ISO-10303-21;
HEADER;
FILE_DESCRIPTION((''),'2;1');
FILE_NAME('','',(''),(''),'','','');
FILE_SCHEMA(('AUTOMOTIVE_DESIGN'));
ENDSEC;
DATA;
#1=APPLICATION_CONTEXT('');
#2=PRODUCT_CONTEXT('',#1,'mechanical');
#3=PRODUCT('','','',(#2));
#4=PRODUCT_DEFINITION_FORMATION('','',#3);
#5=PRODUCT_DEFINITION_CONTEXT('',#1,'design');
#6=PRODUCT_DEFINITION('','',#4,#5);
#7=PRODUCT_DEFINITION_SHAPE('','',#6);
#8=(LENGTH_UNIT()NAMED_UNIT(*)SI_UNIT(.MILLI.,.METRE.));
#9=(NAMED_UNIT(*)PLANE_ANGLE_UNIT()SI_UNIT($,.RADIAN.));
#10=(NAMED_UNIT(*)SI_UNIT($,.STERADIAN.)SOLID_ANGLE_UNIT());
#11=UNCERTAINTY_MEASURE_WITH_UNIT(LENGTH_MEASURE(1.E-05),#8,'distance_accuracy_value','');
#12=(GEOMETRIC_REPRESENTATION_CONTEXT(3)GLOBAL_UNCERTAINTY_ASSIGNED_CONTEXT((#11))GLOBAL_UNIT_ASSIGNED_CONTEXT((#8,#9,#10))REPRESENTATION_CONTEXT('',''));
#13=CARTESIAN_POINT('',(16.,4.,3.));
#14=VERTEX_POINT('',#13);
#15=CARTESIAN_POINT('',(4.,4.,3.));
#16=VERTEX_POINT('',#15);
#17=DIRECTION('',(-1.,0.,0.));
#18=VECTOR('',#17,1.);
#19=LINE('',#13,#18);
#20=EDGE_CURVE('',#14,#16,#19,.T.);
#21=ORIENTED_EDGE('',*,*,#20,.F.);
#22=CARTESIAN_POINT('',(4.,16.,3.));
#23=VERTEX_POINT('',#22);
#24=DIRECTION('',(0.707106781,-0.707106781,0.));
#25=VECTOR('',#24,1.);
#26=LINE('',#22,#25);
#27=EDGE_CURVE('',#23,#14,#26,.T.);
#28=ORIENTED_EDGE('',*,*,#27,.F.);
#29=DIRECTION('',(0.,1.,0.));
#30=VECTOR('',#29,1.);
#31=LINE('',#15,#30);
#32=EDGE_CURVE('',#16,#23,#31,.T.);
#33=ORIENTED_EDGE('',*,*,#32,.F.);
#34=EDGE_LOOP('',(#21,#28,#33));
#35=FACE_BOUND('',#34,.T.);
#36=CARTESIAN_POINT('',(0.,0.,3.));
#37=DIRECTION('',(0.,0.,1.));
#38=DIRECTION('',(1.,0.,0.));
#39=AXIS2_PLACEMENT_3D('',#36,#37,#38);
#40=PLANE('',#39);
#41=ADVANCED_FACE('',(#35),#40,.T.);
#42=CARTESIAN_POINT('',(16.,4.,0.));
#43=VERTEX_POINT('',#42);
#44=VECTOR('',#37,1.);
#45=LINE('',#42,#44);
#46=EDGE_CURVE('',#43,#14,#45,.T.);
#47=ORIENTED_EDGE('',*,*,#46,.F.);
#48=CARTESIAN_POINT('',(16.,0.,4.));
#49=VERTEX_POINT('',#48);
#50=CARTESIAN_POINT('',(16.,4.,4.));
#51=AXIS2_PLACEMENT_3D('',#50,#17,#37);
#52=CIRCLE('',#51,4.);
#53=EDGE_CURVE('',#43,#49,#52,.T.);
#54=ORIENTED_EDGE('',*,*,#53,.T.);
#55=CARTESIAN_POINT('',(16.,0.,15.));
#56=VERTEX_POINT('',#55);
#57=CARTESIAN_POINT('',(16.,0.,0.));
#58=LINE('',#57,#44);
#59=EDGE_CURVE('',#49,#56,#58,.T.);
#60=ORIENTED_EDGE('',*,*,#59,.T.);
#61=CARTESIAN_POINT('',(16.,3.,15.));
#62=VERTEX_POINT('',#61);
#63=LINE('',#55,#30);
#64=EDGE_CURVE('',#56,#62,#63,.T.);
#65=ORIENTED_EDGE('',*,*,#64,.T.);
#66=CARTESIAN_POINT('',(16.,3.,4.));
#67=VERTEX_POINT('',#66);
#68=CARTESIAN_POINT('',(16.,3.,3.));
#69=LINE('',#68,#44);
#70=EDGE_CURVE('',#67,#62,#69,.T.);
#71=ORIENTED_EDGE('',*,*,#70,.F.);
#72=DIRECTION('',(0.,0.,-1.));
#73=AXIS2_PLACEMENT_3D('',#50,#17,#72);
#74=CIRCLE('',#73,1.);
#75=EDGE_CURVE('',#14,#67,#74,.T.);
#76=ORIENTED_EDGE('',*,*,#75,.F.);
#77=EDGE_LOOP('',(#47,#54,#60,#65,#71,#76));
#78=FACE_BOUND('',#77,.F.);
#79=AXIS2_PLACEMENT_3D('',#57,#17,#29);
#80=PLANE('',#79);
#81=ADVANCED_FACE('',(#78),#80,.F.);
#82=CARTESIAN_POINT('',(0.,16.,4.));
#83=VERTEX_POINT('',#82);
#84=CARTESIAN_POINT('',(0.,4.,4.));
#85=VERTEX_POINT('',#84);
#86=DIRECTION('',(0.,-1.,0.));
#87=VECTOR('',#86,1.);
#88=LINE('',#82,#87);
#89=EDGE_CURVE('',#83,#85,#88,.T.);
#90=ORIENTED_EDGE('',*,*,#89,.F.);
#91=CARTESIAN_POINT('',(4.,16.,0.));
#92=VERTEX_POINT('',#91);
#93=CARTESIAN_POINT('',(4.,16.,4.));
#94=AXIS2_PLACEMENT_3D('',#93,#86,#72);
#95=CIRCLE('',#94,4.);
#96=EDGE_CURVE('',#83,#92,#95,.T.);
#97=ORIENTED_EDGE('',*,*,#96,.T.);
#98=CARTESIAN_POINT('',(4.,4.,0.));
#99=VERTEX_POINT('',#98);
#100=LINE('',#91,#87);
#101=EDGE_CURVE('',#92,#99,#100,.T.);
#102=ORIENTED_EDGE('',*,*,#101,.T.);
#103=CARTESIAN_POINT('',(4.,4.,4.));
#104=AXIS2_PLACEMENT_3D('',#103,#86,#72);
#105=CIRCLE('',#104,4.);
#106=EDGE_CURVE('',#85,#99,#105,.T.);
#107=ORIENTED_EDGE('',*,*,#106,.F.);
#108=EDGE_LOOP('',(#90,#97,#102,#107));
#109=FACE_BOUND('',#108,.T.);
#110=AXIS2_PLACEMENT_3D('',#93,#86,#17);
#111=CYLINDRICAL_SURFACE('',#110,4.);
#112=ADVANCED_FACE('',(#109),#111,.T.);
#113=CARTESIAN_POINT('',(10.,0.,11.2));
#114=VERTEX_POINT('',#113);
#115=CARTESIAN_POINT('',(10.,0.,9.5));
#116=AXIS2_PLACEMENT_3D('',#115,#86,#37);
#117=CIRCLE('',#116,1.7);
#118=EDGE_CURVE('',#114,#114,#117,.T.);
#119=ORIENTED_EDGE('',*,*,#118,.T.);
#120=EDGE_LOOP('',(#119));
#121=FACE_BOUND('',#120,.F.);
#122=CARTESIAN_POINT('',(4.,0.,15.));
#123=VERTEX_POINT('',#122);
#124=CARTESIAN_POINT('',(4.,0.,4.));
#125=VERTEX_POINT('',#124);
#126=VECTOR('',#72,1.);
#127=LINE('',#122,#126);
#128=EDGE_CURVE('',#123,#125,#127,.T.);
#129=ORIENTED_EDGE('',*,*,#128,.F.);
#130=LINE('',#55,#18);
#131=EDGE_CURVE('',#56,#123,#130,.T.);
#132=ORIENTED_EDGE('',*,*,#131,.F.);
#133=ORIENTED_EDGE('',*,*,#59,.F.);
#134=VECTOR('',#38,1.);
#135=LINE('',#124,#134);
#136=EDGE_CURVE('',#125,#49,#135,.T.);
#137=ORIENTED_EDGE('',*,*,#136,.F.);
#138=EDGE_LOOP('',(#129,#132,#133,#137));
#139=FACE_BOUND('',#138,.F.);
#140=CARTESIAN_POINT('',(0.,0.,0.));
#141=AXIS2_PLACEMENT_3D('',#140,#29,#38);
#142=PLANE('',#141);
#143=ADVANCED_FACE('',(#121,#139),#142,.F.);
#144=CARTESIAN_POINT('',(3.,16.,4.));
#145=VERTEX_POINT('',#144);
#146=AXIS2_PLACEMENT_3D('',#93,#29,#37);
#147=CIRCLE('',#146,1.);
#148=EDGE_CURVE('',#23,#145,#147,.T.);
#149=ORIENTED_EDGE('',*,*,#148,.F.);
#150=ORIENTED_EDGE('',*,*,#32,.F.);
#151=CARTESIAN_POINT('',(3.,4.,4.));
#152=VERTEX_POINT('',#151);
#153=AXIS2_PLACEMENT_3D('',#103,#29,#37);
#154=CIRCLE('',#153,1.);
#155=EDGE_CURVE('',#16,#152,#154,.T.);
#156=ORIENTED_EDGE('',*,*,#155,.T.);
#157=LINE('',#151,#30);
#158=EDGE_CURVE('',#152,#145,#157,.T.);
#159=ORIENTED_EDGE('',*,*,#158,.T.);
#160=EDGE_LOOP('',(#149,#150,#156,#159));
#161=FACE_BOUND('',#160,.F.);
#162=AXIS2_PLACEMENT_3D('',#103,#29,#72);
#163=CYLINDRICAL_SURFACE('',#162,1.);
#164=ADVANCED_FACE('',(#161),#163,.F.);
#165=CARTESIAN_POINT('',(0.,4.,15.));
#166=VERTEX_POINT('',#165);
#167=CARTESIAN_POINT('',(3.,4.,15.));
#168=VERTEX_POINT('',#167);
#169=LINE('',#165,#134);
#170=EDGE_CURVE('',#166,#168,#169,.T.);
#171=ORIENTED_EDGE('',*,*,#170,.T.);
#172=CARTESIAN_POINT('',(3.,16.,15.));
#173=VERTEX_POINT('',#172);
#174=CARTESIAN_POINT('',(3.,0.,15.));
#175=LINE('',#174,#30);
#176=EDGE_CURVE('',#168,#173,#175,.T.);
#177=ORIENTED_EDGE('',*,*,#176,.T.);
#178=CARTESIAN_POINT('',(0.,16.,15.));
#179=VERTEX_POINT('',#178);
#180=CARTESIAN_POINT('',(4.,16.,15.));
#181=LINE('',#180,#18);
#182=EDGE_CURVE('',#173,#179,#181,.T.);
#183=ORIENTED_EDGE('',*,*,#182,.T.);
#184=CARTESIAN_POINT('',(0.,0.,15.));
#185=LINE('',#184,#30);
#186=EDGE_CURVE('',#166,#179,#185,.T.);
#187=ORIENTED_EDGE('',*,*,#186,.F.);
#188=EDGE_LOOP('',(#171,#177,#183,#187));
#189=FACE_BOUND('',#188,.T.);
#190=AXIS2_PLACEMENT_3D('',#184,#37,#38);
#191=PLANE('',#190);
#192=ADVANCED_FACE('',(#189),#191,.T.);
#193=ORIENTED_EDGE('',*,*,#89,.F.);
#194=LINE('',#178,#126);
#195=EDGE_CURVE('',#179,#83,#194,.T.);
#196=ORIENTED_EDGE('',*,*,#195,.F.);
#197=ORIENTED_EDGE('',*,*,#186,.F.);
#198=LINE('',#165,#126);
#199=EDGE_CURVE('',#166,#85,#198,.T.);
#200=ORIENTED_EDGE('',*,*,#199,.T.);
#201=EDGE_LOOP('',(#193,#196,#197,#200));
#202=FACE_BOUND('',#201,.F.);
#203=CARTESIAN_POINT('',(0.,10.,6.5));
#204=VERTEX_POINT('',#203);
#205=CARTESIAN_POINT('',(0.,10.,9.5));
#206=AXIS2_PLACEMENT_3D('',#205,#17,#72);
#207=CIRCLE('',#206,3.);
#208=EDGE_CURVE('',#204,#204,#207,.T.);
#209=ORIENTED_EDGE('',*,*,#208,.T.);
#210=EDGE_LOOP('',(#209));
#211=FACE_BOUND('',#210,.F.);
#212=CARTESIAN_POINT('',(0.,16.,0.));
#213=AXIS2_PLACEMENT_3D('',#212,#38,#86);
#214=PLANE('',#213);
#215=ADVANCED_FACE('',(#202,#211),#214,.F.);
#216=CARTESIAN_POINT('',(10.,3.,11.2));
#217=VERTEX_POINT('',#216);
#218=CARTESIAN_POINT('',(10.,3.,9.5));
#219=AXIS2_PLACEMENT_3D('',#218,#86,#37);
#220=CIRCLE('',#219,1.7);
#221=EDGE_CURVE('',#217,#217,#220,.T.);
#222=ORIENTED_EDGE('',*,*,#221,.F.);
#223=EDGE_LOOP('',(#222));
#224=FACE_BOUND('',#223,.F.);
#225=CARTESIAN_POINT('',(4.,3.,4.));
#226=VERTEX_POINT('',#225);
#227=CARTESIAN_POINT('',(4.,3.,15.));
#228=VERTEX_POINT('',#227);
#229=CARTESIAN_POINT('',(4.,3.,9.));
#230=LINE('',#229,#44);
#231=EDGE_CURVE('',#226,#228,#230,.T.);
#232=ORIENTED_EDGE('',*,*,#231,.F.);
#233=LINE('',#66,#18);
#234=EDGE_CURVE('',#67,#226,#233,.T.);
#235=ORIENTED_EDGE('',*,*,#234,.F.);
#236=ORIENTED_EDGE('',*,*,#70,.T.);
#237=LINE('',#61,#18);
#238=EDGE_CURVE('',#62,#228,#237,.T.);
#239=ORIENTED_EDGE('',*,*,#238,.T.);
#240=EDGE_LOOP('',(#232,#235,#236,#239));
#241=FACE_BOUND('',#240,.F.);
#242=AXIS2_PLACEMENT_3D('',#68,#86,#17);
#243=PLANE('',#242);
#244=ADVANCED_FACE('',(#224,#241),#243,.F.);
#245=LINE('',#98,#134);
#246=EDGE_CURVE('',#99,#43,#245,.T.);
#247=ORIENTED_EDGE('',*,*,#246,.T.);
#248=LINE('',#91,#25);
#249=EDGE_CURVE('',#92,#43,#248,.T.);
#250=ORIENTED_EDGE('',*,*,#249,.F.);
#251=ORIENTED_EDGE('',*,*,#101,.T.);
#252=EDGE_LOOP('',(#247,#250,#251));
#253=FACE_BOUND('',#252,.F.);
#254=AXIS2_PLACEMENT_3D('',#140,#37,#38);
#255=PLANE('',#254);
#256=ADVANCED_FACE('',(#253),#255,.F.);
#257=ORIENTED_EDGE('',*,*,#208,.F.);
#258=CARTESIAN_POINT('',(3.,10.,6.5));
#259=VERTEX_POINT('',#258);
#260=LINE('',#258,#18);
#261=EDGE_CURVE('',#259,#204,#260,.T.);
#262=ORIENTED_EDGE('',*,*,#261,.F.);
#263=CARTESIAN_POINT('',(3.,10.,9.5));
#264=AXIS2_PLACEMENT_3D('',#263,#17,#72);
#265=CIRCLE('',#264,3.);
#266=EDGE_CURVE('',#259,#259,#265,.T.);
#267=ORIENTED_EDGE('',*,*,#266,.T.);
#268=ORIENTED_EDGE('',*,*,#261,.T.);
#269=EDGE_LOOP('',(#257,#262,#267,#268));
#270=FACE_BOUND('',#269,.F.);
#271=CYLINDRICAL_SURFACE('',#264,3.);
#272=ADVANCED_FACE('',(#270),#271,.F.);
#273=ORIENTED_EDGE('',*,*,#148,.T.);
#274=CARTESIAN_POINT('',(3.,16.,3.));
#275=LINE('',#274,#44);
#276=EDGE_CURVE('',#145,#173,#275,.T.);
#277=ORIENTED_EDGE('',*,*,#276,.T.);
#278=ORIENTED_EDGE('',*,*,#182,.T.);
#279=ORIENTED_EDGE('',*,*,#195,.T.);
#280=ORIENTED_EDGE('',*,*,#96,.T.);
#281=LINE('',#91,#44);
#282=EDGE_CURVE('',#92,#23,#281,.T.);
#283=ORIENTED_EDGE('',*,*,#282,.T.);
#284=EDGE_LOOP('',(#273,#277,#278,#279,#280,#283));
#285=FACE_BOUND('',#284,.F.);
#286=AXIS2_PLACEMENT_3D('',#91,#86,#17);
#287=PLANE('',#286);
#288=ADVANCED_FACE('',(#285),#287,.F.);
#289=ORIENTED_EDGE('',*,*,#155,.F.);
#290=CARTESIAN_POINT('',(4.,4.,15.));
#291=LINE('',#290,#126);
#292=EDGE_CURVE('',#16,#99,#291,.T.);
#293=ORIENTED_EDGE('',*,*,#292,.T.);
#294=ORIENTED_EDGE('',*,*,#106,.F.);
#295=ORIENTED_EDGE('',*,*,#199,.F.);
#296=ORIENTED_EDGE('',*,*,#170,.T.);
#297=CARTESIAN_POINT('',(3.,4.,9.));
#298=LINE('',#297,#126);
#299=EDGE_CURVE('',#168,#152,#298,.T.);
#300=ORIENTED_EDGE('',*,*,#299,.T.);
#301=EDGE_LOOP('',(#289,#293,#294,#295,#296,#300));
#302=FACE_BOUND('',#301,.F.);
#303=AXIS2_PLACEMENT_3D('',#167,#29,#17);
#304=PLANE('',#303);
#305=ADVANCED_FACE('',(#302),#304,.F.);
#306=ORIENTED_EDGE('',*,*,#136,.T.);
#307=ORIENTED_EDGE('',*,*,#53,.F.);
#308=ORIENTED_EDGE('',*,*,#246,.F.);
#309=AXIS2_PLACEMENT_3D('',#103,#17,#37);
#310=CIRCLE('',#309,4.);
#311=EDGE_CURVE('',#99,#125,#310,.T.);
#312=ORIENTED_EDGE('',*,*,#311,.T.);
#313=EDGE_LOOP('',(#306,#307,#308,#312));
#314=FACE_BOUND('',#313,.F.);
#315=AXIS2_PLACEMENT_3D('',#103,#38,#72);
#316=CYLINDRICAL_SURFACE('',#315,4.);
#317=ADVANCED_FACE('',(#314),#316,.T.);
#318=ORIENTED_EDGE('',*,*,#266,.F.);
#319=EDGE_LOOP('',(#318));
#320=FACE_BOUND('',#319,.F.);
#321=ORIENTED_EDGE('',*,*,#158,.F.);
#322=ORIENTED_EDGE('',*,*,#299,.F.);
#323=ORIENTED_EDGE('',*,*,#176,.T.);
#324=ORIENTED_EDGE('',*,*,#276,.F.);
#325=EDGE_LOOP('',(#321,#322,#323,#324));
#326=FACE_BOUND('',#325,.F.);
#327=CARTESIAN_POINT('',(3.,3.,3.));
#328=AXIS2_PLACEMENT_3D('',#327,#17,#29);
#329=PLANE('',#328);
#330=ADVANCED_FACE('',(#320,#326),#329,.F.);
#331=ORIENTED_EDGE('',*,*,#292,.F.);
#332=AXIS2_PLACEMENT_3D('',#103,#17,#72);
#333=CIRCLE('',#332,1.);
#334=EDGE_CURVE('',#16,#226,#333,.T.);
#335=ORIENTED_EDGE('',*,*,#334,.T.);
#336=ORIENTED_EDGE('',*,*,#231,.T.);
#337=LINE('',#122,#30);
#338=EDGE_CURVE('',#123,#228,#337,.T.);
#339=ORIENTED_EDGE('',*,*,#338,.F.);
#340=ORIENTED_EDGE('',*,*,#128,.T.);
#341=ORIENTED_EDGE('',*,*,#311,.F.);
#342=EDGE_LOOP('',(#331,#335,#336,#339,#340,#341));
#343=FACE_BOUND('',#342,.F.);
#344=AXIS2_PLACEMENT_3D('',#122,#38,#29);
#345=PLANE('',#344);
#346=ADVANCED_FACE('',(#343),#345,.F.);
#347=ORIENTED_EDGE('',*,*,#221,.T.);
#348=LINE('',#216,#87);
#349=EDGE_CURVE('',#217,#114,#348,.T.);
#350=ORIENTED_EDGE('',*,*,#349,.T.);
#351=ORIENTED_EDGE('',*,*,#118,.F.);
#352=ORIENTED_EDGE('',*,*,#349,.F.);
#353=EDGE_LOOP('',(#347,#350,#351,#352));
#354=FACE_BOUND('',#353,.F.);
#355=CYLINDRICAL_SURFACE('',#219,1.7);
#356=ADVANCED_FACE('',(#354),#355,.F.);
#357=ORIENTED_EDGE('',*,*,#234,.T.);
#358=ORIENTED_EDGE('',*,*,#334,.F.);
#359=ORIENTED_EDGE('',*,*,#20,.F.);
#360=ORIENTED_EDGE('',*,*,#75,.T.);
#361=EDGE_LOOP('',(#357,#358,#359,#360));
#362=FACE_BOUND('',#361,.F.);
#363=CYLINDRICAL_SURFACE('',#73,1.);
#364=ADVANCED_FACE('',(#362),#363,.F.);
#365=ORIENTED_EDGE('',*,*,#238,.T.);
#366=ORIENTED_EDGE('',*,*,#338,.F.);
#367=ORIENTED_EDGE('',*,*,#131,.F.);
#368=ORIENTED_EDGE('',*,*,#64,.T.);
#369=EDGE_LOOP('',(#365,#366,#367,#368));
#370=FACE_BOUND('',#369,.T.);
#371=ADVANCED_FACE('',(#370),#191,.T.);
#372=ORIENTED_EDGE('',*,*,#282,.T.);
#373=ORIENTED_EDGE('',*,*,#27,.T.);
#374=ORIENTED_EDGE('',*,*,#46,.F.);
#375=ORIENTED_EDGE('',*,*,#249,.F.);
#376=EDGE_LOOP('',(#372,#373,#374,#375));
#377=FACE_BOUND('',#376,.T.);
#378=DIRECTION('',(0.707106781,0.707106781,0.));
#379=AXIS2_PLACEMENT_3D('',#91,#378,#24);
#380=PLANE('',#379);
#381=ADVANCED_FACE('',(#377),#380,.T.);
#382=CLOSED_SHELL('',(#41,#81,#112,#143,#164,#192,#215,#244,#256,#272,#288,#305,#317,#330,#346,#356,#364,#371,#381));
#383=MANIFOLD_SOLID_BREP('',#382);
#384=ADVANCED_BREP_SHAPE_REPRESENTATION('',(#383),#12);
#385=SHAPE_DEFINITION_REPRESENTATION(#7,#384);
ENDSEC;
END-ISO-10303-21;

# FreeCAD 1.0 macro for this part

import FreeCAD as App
import Part
import Sketcher
from FreeCAD import Vector


def edges_at(feature, points):
    """Names of the edges that pass closest to the given points."""
    edges = feature.Shape.Edges
    near = lambda p: min(range(len(edges)), key=lambda i: edges[i].distToShape(Part.Vertex(*p))[0])
    return sorted({f"Edge{near(p) + 1}" for p in points})

doc = App.newDocument("Part")
body = doc.addObject("PartDesign::Body", "Body")

sketch1 = body.newObject("Sketcher::SketchObject", "Sketch")
sketch1.AttachmentSupport = (doc.getObject("XY_Plane"), [""])
sketch1.MapMode = "FlatFace"
sketch1.addGeometry([
    Part.LineSegment(Vector(0, 16, 0), Vector(0, 0, 0)),
    Part.LineSegment(Vector(0, 0, 0), Vector(16, 0, 0)),
    Part.LineSegment(Vector(16, 0, 0), Vector(16, 4, 0)),
    Part.LineSegment(Vector(16, 4, 0), Vector(4, 16, 0)),
    Part.LineSegment(Vector(4, 16, 0), Vector(0, 16, 0)),
], False)
sketch1.addConstraint([
    Sketcher.Constraint("Coincident", 0, 2, 1, 1),
    Sketcher.Constraint("Coincident", 1, 2, 2, 1),
    Sketcher.Constraint("Coincident", 2, 2, 3, 1),
    Sketcher.Constraint("Coincident", 3, 2, 4, 1),
    Sketcher.Constraint("Coincident", 4, 2, 0, 1),
    Sketcher.Constraint("Vertical", 0),
    Sketcher.Constraint("Horizontal", 1),
    Sketcher.Constraint("Vertical", 2),
    Sketcher.Constraint("Horizontal", 4),
    Sketcher.Constraint("Coincident", 0, 2, -1, 1),
    Sketcher.Constraint("Equal", 1, 0),
    Sketcher.Constraint("Equal", 4, 2),
    Sketcher.Constraint("DistanceX", 1, 1, 1, 2, 16.0),
    Sketcher.Constraint("DistanceX", 4, 2, 4, 1, 4.0),
])
pad1 = body.newObject("PartDesign::Pad", "Pad")
pad1.Profile = sketch1
pad1.Length = 3

sketch2 = body.newObject("Sketcher::SketchObject", "Sketch001")
sketch2.AttachmentSupport = (doc.getObject("XY_Plane"), [""])
sketch2.MapMode = "FlatFace"
sketch2.AttachmentOffset = App.Placement(Vector(0, 0, 3), App.Rotation())
sketch2.addGeometry([
    Part.LineSegment(Vector(0, 0, 0), Vector(16, 0, 0)),
    Part.LineSegment(Vector(16, 0, 0), Vector(16, 3, 0)),
    Part.LineSegment(Vector(16, 3, 0), Vector(3, 3, 0)),
    Part.LineSegment(Vector(3, 3, 0), Vector(3, 16, 0)),
    Part.LineSegment(Vector(3, 16, 0), Vector(0, 16, 0)),
    Part.LineSegment(Vector(0, 16, 0), Vector(0, 0, 0)),
], False)
sketch2.addConstraint([
    Sketcher.Constraint("Coincident", 0, 2, 1, 1),
    Sketcher.Constraint("Coincident", 1, 2, 2, 1),
    Sketcher.Constraint("Coincident", 2, 2, 3, 1),
    Sketcher.Constraint("Coincident", 3, 2, 4, 1),
    Sketcher.Constraint("Coincident", 4, 2, 5, 1),
    Sketcher.Constraint("Coincident", 5, 2, 0, 1),
    Sketcher.Constraint("Horizontal", 0),
    Sketcher.Constraint("Vertical", 1),
    Sketcher.Constraint("Horizontal", 2),
    Sketcher.Constraint("Vertical", 3),
    Sketcher.Constraint("Horizontal", 4),
    Sketcher.Constraint("Vertical", 5),
    Sketcher.Constraint("Coincident", 5, 2, -1, 1),
    Sketcher.Constraint("Equal", 4, 1),
    Sketcher.Constraint("Equal", 2, 3),
    Sketcher.Constraint("DistanceX", 4, 2, 4, 1, 3.0),
    Sketcher.Constraint("DistanceX", 0, 1, 0, 2, 16.0),
])
pad2 = body.newObject("PartDesign::Pad", "Pad001")
pad2.Profile = sketch2
pad2.Length = 12

sketch3 = body.newObject("Sketcher::SketchObject", "Sketch002")
sketch3.AttachmentSupport = (doc.getObject("XY_Plane"), [""])
sketch3.MapMode = "FlatFace"
sketch3.AttachmentOffset = App.Placement(Vector(0, 0, 15), App.Rotation())
sketch3.addGeometry([
    Part.LineSegment(Vector(0, 4, 0), Vector(0, 0, 0)),
    Part.LineSegment(Vector(0, 0, 0), Vector(4, 0, 0)),
    Part.LineSegment(Vector(4, 0, 0), Vector(4, 4, 0)),
    Part.LineSegment(Vector(4, 4, 0), Vector(0, 4, 0)),
], False)
sketch3.addConstraint([
    Sketcher.Constraint("Coincident", 0, 2, 1, 1),
    Sketcher.Constraint("Coincident", 1, 2, 2, 1),
    Sketcher.Constraint("Coincident", 2, 2, 3, 1),
    Sketcher.Constraint("Coincident", 3, 2, 0, 1),
    Sketcher.Constraint("Vertical", 0),
    Sketcher.Constraint("Horizontal", 1),
    Sketcher.Constraint("Vertical", 2),
    Sketcher.Constraint("Horizontal", 3),
    Sketcher.Constraint("Coincident", 0, 2, -1, 1),
    Sketcher.Constraint("Equal", 3, 0),
    Sketcher.Constraint("DistanceX", 1, 1, 1, 2, 4.0),
])
pocket1 = body.newObject("PartDesign::Pocket", "Pocket")
pocket1.Profile = sketch3
pocket1.Type = "ThroughAll"
doc.recompute()

fillet = body.newObject("PartDesign::Fillet", "Fillet")
fillet.Base = (pocket1, edges_at(pocket1, [(3, 10, 3), (10, 3, 3)]))
fillet.Radius = 1
doc.recompute()

fillet2 = body.newObject("PartDesign::Fillet", "Fillet001")
fillet2.Base = (fillet, edges_at(fillet, [(0, 10, 0), (10, 0, 0)]))
fillet2.Radius = 4

sketch4 = body.newObject("Sketcher::SketchObject", "Sketch003")
sketch4.AttachmentSupport = (doc.getObject("YZ_Plane"), [""])
sketch4.MapMode = "FlatFace"
sketch4.AttachmentOffset = App.Placement(Vector(0, 0, 3), App.Rotation())
sketch4.addGeometry(Part.Circle(Vector(10, 9.5, 0), Vector(0, 0, 1), 3), False)
sketch4.addConstraint([
    Sketcher.Constraint("Diameter", 0, 6.0),
    Sketcher.Constraint("DistanceX", -1, 1, 0, 3, 10.0),
    Sketcher.Constraint("DistanceY", -1, 1, 0, 3, 9.5),
])
doc.recompute()
hole = body.newObject("PartDesign::Hole", "Hole")
hole.Profile = sketch4
hole.ThreadType = "None"
hole.Diameter = 6
hole.DepthType = "ThroughAll"

sketch5 = body.newObject("Sketcher::SketchObject", "Sketch004")
sketch5.AttachmentSupport = (doc.getObject("XZ_Plane"), [""])
sketch5.MapMode = "FlatFace"
sketch5.AttachmentOffset = App.Placement(Vector(0, 0, -3), App.Rotation())
sketch5.addGeometry(Part.Circle(Vector(10, 9.5, 0), Vector(0, 0, 1), 1.7), False)
sketch5.addConstraint([
    Sketcher.Constraint("Diameter", 0, 3.4),
    Sketcher.Constraint("DistanceX", -1, 1, 0, 3, 10.0),
    Sketcher.Constraint("DistanceY", -1, 1, 0, 3, 9.5),
])
doc.recompute()
hole2 = body.newObject("PartDesign::Hole", "Hole001")
hole2.Profile = sketch5
hole2.ThreadType = "None"
hole2.Diameter = 3.4
hole2.DepthType = "ThroughAll"
hole2.Reversed = True

doc.recompute()
